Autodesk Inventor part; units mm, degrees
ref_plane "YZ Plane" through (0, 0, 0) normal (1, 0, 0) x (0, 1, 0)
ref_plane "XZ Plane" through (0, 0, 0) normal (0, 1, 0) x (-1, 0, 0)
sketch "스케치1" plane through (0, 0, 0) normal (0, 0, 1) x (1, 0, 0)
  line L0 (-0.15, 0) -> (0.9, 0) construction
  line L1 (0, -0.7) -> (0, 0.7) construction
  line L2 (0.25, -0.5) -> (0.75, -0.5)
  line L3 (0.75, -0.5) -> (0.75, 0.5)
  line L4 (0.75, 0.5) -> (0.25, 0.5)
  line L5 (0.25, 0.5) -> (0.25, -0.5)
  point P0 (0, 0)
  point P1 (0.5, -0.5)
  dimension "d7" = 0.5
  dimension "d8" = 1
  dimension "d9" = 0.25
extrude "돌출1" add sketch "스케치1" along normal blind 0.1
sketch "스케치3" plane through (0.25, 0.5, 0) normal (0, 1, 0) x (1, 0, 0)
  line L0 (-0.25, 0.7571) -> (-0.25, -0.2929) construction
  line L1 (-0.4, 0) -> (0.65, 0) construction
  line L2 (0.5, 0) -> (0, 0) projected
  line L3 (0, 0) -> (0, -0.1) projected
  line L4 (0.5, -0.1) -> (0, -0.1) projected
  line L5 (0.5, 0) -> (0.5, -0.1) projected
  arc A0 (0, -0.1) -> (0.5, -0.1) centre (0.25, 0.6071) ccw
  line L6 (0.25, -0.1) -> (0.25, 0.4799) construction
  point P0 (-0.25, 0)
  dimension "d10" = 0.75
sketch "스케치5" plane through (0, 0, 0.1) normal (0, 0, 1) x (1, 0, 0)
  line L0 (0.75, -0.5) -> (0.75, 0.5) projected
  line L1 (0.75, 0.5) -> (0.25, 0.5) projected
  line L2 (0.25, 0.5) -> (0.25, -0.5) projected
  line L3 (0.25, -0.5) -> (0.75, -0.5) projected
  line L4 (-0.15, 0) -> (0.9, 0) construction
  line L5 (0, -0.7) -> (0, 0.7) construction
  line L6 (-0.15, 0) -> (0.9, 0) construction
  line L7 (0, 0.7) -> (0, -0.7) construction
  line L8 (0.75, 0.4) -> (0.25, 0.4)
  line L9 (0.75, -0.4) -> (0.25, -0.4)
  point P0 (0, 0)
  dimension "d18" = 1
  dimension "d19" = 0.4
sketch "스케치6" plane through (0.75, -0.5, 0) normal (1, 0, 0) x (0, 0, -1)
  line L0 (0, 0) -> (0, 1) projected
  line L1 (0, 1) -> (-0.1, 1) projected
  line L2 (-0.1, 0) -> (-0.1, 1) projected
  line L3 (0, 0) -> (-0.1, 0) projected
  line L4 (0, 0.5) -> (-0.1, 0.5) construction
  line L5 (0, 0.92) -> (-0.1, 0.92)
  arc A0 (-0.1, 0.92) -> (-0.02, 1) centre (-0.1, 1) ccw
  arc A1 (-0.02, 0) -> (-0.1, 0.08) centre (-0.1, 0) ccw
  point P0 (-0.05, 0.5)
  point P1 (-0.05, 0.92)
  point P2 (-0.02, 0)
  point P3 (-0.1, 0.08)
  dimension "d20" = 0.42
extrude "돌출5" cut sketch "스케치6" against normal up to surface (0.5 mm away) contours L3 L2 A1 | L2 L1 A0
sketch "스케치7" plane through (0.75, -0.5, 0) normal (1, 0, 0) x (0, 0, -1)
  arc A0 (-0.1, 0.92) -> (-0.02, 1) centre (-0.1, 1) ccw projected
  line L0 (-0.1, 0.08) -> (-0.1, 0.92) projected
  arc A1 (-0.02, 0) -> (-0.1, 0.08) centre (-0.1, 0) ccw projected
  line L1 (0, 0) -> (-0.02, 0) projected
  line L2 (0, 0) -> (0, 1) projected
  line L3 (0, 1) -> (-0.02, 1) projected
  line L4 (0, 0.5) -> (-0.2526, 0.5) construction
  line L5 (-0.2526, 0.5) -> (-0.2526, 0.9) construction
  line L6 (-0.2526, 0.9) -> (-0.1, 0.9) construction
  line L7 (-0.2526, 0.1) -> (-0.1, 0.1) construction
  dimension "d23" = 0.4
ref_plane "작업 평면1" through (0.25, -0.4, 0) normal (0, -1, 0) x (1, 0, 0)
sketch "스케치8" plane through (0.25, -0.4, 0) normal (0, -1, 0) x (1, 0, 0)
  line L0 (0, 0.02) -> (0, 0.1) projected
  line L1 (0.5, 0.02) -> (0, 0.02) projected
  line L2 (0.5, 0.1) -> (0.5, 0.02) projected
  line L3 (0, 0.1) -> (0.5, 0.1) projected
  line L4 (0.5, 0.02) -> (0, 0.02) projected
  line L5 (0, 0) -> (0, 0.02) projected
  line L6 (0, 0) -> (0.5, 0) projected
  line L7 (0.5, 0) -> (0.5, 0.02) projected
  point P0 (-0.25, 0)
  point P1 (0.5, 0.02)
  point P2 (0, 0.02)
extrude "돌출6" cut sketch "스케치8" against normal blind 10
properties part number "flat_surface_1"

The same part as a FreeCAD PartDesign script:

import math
import FreeCAD as App
import Part
import Sketcher
Q = App.Units.Quantity

doc = App.newDocument("Part")
body = doc.addObject("PartDesign::Body", "Body")

sketch1 = body.newObject("Sketcher::SketchObject", "Sketch")
sketch1.AttachmentSupport = (doc.getObject("XY_Plane"), [""])
sketch1.MapMode = "FlatFace"
sketch1.addGeometry([
    Part.LineSegment(App.Vector(0.25, 0.5, 0), App.Vector(0.25, -0.5, 0)),
    Part.LineSegment(App.Vector(0.25, -0.5, 0), App.Vector(0.75, -0.5, 0)),
    Part.LineSegment(App.Vector(0.75, -0.5, 0), App.Vector(0.75, 0.5, 0)),
    Part.LineSegment(App.Vector(0.75, 0.5, 0), App.Vector(0.25, 0.5, 0)),
], False)
sketch1.addConstraint([
    Sketcher.Constraint("Coincident", 0, 2, 1, 1),
    Sketcher.Constraint("Coincident", 1, 2, 2, 1),
    Sketcher.Constraint("Coincident", 2, 2, 3, 1),
    Sketcher.Constraint("Coincident", 3, 2, 0, 1),
    Sketcher.Constraint("Vertical", 0),
    Sketcher.Constraint("Horizontal", 1),
    Sketcher.Constraint("Vertical", 2),
    Sketcher.Constraint("Horizontal", 3),
    Sketcher.Constraint("DistanceY", 0, 2, 0, 1, Q("1 mm")),
    Sketcher.Constraint("DistanceX", 1, 1, 1, 2, Q("0.5 mm")),
    Sketcher.Constraint("DistanceY", 0, 2, -1, 1, Q("0.5 mm")),
    Sketcher.Constraint("DistanceX", -1, 1, 0, 2, Q("0.25 mm")),
])
pad1 = body.newObject("PartDesign::Pad", "Pad")
pad1.Profile = sketch1
pad1.Length = 0.1

sketch2 = body.newObject("Sketcher::SketchObject", "Sketch001")
sketch2.AttachmentSupport = (doc.getObject("YZ_Plane"), [""])
sketch2.MapMode = "FlatFace"
sketch2.AttachmentOffset = App.Placement(App.Vector(0, 0, 0.75), App.Rotation())
sketch2.addGeometry([
    Part.LineSegment(App.Vector(-0.5, 0.1, 0), App.Vector(-0.5, 0.02, 0)),
    Part.ArcOfCircle(Part.Circle(App.Vector(-0.5, 0.1, 0), App.Vector(0, 0, 1), 0.08), math.radians(-90), math.radians(0)),
    Part.LineSegment(App.Vector(-0.42, 0.1, 0), App.Vector(-0.5, 0.1, 0)),
    Part.LineSegment(App.Vector(0.5, 0.1, 0), App.Vector(0.42, 0.1, 0)),
    Part.ArcOfCircle(Part.Circle(App.Vector(0.5, 0.1, 0), App.Vector(0, 0, 1), 0.08), math.radians(180), math.radians(270)),
    Part.LineSegment(App.Vector(0.5, 0.02, 0), App.Vector(0.5, 0.1, 0)),
], False)
sketch2.addConstraint([
    Sketcher.Constraint("Coincident", 0, 2, 1, 1),
    Sketcher.Constraint("Coincident", 1, 2, 2, 1),
    Sketcher.Constraint("Coincident", 2, 2, 0, 1),
    Sketcher.Constraint("Coincident", 3, 2, 4, 1),
    Sketcher.Constraint("Coincident", 4, 2, 5, 1),
    Sketcher.Constraint("Coincident", 5, 2, 3, 1),
    Sketcher.Constraint("Vertical", 0),
    Sketcher.Constraint("Horizontal", 2),
    Sketcher.Constraint("Horizontal", 3),
    Sketcher.Constraint("Vertical", 5),
    Sketcher.Constraint("Coincident", 2, 2, 1, 3),
    Sketcher.Constraint("Coincident", 5, 2, 4, 3),
    Sketcher.Constraint("Equal", 1, 4),
    Sketcher.Constraint("Symmetric", 1, 3, 4, 3, -2),
    Sketcher.Constraint("DistanceX", 1, 2, -1, 1, Q("0.42 mm")),
    Sketcher.Constraint("Radius", 1, Q("0.08 mm")),
    Sketcher.Constraint("DistanceY", -1, 1, 1, 3, Q("0.1 mm")),
])
pocket1 = body.newObject("PartDesign::Pocket", "Pocket")
pocket1.Profile = sketch2
pocket1.Length = 0.5

sketch3 = body.newObject("Sketcher::SketchObject", "Sketch002")
sketch3.AttachmentSupport = (doc.getObject("XZ_Plane"), [""])
sketch3.MapMode = "FlatFace"
sketch3.AttachmentOffset = App.Placement(App.Vector(0, 0, 0.4), App.Rotation())
sketch3.addGeometry([
    Part.LineSegment(App.Vector(0.25, 0.1, 0), App.Vector(0.25, 0, 0)),
    Part.LineSegment(App.Vector(0.25, 0, 0), App.Vector(0.75, 0, 0)),
    Part.LineSegment(App.Vector(0.75, 0, 0), App.Vector(0.75, 0.1, 0)),
    Part.LineSegment(App.Vector(0.75, 0.1, 0), App.Vector(0.25, 0.1, 0)),
], False)
sketch3.addConstraint([
    Sketcher.Constraint("Coincident", 0, 2, 1, 1),
    Sketcher.Constraint("Coincident", 1, 2, 2, 1),
    Sketcher.Constraint("Coincident", 2, 2, 3, 1),
    Sketcher.Constraint("Coincident", 3, 2, 0, 1),
    Sketcher.Constraint("Vertical", 0),
    Sketcher.Constraint("Horizontal", 1),
    Sketcher.Constraint("Vertical", 2),
    Sketcher.Constraint("Horizontal", 3),
    Sketcher.Constraint("PointOnObject", 0, 2, -1),
    Sketcher.Constraint("DistanceX", 1, 1, 1, 2, Q("0.5 mm")),
    Sketcher.Constraint("DistanceY", 0, 2, 0, 1, Q("0.1 mm")),
    Sketcher.Constraint("DistanceX", -1, 1, 0, 2, Q("0.25 mm")),
])
pocket2 = body.newObject("PartDesign::Pocket", "Pocket001")
pocket2.Profile = sketch3
pocket2.Length = 10

doc.recompute()
